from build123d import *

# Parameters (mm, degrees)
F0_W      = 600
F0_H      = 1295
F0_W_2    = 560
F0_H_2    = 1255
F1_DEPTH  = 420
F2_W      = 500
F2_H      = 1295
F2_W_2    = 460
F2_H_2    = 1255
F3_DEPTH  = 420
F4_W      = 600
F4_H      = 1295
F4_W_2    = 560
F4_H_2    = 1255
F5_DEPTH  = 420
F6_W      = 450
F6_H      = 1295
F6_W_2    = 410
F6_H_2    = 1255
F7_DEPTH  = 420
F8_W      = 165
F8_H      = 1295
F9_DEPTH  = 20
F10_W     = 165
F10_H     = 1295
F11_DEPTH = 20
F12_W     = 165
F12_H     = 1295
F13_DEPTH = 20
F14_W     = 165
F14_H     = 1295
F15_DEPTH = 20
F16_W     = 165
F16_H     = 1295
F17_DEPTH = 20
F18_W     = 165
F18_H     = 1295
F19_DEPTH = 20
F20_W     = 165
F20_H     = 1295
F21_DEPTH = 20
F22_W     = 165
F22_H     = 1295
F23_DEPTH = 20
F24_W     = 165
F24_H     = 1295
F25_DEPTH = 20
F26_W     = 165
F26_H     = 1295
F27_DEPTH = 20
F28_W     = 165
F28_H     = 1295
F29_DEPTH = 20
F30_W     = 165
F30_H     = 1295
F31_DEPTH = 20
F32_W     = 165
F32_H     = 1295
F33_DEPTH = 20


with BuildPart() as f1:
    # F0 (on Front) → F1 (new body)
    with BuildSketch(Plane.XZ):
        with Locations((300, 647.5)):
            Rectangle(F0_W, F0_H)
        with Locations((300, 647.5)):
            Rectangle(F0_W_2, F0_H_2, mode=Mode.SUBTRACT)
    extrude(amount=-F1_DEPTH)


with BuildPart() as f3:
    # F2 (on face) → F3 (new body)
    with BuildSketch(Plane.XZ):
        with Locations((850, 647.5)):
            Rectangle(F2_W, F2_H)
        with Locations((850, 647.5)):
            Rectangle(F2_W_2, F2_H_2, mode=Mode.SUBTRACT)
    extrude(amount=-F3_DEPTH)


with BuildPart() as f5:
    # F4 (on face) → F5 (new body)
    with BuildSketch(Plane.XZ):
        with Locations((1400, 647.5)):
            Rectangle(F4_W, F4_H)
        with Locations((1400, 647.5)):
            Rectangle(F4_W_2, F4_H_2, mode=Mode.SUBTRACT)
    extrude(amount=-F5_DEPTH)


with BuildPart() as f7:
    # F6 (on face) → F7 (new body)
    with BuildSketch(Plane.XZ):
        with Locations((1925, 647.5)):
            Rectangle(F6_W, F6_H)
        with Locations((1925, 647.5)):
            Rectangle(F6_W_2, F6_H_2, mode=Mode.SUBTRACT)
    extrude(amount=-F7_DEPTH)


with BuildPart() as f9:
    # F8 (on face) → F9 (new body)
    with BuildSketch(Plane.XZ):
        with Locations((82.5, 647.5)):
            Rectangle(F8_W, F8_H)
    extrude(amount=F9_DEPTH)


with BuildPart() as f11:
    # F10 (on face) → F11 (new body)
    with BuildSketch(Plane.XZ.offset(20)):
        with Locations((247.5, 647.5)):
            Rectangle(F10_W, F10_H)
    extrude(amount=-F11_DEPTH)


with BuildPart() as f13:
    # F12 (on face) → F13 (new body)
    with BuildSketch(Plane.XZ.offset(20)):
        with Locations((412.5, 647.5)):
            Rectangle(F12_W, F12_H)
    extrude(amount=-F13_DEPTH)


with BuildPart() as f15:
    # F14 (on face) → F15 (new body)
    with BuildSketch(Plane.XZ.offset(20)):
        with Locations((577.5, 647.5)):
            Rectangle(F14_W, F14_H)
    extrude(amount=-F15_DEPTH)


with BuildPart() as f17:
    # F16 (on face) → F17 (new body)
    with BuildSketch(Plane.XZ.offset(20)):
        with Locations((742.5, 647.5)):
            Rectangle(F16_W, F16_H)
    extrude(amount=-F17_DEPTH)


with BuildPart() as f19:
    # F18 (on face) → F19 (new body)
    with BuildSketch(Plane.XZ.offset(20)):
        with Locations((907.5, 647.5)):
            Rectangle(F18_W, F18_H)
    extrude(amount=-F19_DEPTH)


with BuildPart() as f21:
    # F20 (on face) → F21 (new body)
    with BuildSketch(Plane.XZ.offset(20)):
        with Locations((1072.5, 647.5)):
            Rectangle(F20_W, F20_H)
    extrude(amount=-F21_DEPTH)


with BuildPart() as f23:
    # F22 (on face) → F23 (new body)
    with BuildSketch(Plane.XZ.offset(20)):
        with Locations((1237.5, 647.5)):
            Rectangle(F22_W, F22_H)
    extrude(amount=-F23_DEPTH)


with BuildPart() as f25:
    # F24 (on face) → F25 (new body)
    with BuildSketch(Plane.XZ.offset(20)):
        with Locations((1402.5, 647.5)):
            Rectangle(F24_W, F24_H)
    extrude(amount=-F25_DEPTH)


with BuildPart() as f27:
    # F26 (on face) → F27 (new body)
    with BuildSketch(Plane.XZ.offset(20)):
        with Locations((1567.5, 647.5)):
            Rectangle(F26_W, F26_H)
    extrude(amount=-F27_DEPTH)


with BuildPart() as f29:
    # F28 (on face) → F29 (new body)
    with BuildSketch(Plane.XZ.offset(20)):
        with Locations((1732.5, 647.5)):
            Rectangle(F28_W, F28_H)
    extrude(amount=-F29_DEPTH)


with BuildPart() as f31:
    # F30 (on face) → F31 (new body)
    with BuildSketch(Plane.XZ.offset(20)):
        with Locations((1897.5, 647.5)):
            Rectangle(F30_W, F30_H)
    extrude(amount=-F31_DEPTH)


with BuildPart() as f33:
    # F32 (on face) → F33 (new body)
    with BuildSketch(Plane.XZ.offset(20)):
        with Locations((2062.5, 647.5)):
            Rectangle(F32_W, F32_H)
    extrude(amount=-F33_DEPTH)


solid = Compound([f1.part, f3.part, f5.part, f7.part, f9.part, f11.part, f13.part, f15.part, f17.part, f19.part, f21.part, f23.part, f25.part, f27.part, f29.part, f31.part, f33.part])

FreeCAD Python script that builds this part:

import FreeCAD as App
import Part
import Sketcher
from FreeCAD import Vector
Q = App.Units.Quantity

doc = App.newDocument("Part")
body = doc.addObject("PartDesign::Body", "Body")

# Sketch on XZ plane
sketch1 = body.newObject("Sketcher::SketchObject", "Sketch")
sketch1.AttachmentSupport = (doc.getObject("XZ_Plane"), [""])
sketch1.MapMode = "FlatFace"
sketch1.addGeometry([
    Part.LineSegment(Vector(0, 1295, 0), Vector(0, 0, 0)),  # 0
    Part.LineSegment(Vector(0, 0, 0), Vector(600, 0, 0)),  # 1
    Part.LineSegment(Vector(600, 0, 0), Vector(600, 1295, 0)),  # 2
    Part.LineSegment(Vector(600, 1295, 0), Vector(0, 1295, 0)),  # 3
    Part.LineSegment(Vector(580, 20, 0), Vector(20, 20, 0)),  # 4
    Part.LineSegment(Vector(20, 20, 0), Vector(20, 1275, 0)),  # 5
    Part.LineSegment(Vector(20, 1275, 0), Vector(580, 1275, 0)),  # 6
    Part.LineSegment(Vector(580, 1275, 0), Vector(580, 20, 0)),  # 7
], False)
sketch1.addConstraint([
    Sketcher.Constraint("Coincident", 0, 2, 1, 1),
    Sketcher.Constraint("Coincident", 1, 2, 2, 1),
    Sketcher.Constraint("Coincident", 2, 2, 3, 1),
    Sketcher.Constraint("Coincident", 3, 2, 0, 1),
    Sketcher.Constraint("Coincident", 4, 2, 5, 1),
    Sketcher.Constraint("Coincident", 5, 2, 6, 1),
    Sketcher.Constraint("Coincident", 6, 2, 7, 1),
    Sketcher.Constraint("Coincident", 7, 2, 4, 1),
    Sketcher.Constraint("Vertical", 0),
    Sketcher.Constraint("Horizontal", 1),
    Sketcher.Constraint("Vertical", 2),
    Sketcher.Constraint("Horizontal", 3),
    Sketcher.Constraint("Horizontal", 4),
    Sketcher.Constraint("Vertical", 5),
    Sketcher.Constraint("Horizontal", 6),
    Sketcher.Constraint("Vertical", 7),
    Sketcher.Constraint("Coincident", 0, 2, -1, 1),
    Sketcher.Constraint("DistanceX", 1, 1, 1, 2, Q("600 mm")),
    Sketcher.Constraint("DistanceX", 4, 2, 4, 1, Q("560 mm")),
    Sketcher.Constraint("DistanceY", 0, 2, 0, 1, Q("1295 mm")),
    Sketcher.Constraint("DistanceY", 5, 1, 5, 2, Q("1255 mm")),
    Sketcher.Constraint("DistanceX", -1, 1, 4, 2, Q("20 mm")),
    Sketcher.Constraint("DistanceY", -1, 1, 4, 2, Q("20 mm")),
])
pad1 = body.newObject("PartDesign::Pad", "Pad")
pad1.Profile = sketch1
pad1.Length = 420
pad1.Reversed = True
body2 = doc.addObject("PartDesign::Body", "Body001")

# Sketch on XZ plane
sketch2 = body2.newObject("Sketcher::SketchObject", "Sketch001")
sketch2.AttachmentSupport = (doc.getObject("XZ_Plane001"), [""])
sketch2.MapMode = "FlatFace"
sketch2.addGeometry([
    Part.LineSegment(Vector(600, 1295, 0), Vector(600, 0, 0)),  # 0
    Part.LineSegment(Vector(600, 0, 0), Vector(1100, 0, 0)),  # 1
    Part.LineSegment(Vector(1100, 0, 0), Vector(1100, 1295, 0)),  # 2
    Part.LineSegment(Vector(1100, 1295, 0), Vector(600, 1295, 0)),  # 3
    Part.LineSegment(Vector(1080, 20, 0), Vector(620, 20, 0)),  # 4
    Part.LineSegment(Vector(620, 20, 0), Vector(620, 1275, 0)),  # 5
    Part.LineSegment(Vector(620, 1275, 0), Vector(1080, 1275, 0)),  # 6
    Part.LineSegment(Vector(1080, 1275, 0), Vector(1080, 20, 0)),  # 7
], False)
sketch2.addConstraint([
    Sketcher.Constraint("Coincident", 0, 2, 1, 1),
    Sketcher.Constraint("Coincident", 1, 2, 2, 1),
    Sketcher.Constraint("Coincident", 2, 2, 3, 1),
    Sketcher.Constraint("Coincident", 3, 2, 0, 1),
    Sketcher.Constraint("Coincident", 4, 2, 5, 1),
    Sketcher.Constraint("Coincident", 5, 2, 6, 1),
    Sketcher.Constraint("Coincident", 6, 2, 7, 1),
    Sketcher.Constraint("Coincident", 7, 2, 4, 1),
    Sketcher.Constraint("Vertical", 0),
    Sketcher.Constraint("Horizontal", 1),
    Sketcher.Constraint("Vertical", 2),
    Sketcher.Constraint("Horizontal", 3),
    Sketcher.Constraint("Horizontal", 4),
    Sketcher.Constraint("Vertical", 5),
    Sketcher.Constraint("Horizontal", 6),
    Sketcher.Constraint("Vertical", 7),
    Sketcher.Constraint("PointOnObject", 0, 2, -1),
    Sketcher.Constraint("DistanceX", 1, 1, 1, 2, Q("500 mm")),
    Sketcher.Constraint("DistanceX", 4, 2, 4, 1, Q("460 mm")),
    Sketcher.Constraint("DistanceY", 0, 2, 0, 1, Q("1295 mm")),
    Sketcher.Constraint("DistanceY", 5, 1, 5, 2, Q("1255 mm")),
    Sketcher.Constraint("DistanceX", -1, 1, 0, 2, Q("600 mm")),
    Sketcher.Constraint("DistanceX", -1, 1, 4, 2, Q("620 mm")),
    Sketcher.Constraint("DistanceY", -1, 1, 4, 2, Q("20 mm")),
])
pad2 = body2.newObject("PartDesign::Pad", "Pad001")
pad2.Profile = sketch2
pad2.Length = 420
pad2.Reversed = True
body3 = doc.addObject("PartDesign::Body", "Body002")

# Sketch on XZ plane
sketch3 = body3.newObject("Sketcher::SketchObject", "Sketch002")
sketch3.AttachmentSupport = (doc.getObject("XZ_Plane002"), [""])
sketch3.MapMode = "FlatFace"
sketch3.addGeometry([
    Part.LineSegment(Vector(1100, 1295, 0), Vector(1100, 0, 0)),  # 0
    Part.LineSegment(Vector(1100, 0, 0), Vector(1700, 0, 0)),  # 1
    Part.LineSegment(Vector(1700, 0, 0), Vector(1700, 1295, 0)),  # 2
    Part.LineSegment(Vector(1700, 1295, 0), Vector(1100, 1295, 0)),  # 3
    Part.LineSegment(Vector(1680, 20, 0), Vector(1120, 20, 0)),  # 4
    Part.LineSegment(Vector(1120, 20, 0), Vector(1120, 1275, 0)),  # 5
    Part.LineSegment(Vector(1120, 1275, 0), Vector(1680, 1275, 0)),  # 6
    Part.LineSegment(Vector(1680, 1275, 0), Vector(1680, 20, 0)),  # 7
], False)
sketch3.addConstraint([
    Sketcher.Constraint("Coincident", 0, 2, 1, 1),
    Sketcher.Constraint("Coincident", 1, 2, 2, 1),
    Sketcher.Constraint("Coincident", 2, 2, 3, 1),
    Sketcher.Constraint("Coincident", 3, 2, 0, 1),
    Sketcher.Constraint("Coincident", 4, 2, 5, 1),
    Sketcher.Constraint("Coincident", 5, 2, 6, 1),
    Sketcher.Constraint("Coincident", 6, 2, 7, 1),
    Sketcher.Constraint("Coincident", 7, 2, 4, 1),
    Sketcher.Constraint("Vertical", 0),
    Sketcher.Constraint("Horizontal", 1),
    Sketcher.Constraint("Vertical", 2),
    Sketcher.Constraint("Horizontal", 3),
    Sketcher.Constraint("Horizontal", 4),
    Sketcher.Constraint("Vertical", 5),
    Sketcher.Constraint("Horizontal", 6),
    Sketcher.Constraint("Vertical", 7),
    Sketcher.Constraint("PointOnObject", 0, 2, -1),
    Sketcher.Constraint("DistanceX", 1, 1, 1, 2, Q("600 mm")),
    Sketcher.Constraint("DistanceX", 4, 2, 4, 1, Q("560 mm")),
    Sketcher.Constraint("DistanceY", 0, 2, 0, 1, Q("1295 mm")),
    Sketcher.Constraint("DistanceY", 5, 1, 5, 2, Q("1255 mm")),
    Sketcher.Constraint("DistanceX", -1, 1, 0, 2, Q("1100 mm")),
    Sketcher.Constraint("DistanceX", -1, 1, 4, 2, Q("1120 mm")),
    Sketcher.Constraint("DistanceY", -1, 1, 4, 2, Q("20 mm")),
])
pad3 = body3.newObject("PartDesign::Pad", "Pad002")
pad3.Profile = sketch3
pad3.Length = 420
pad3.Reversed = True
body4 = doc.addObject("PartDesign::Body", "Body003")

# Sketch on XZ plane
sketch4 = body4.newObject("Sketcher::SketchObject", "Sketch003")
sketch4.AttachmentSupport = (doc.getObject("XZ_Plane003"), [""])
sketch4.MapMode = "FlatFace"
sketch4.addGeometry([
    Part.LineSegment(Vector(1700, 1295, 0), Vector(1700, 0, 0)),  # 0
    Part.LineSegment(Vector(1700, 0, 0), Vector(2150, 0, 0)),  # 1
    Part.LineSegment(Vector(2150, 0, 0), Vector(2150, 1295, 0)),  # 2
    Part.LineSegment(Vector(2150, 1295, 0), Vector(1700, 1295, 0)),  # 3
    Part.LineSegment(Vector(2130, 20, 0), Vector(1720, 20, 0)),  # 4
    Part.LineSegment(Vector(1720, 20, 0), Vector(1720, 1275, 0)),  # 5
    Part.LineSegment(Vector(1720, 1275, 0), Vector(2130, 1275, 0)),  # 6
    Part.LineSegment(Vector(2130, 1275, 0), Vector(2130, 20, 0)),  # 7
], False)
sketch4.addConstraint([
    Sketcher.Constraint("Coincident", 0, 2, 1, 1),
    Sketcher.Constraint("Coincident", 1, 2, 2, 1),
    Sketcher.Constraint("Coincident", 2, 2, 3, 1),
    Sketcher.Constraint("Coincident", 3, 2, 0, 1),
    Sketcher.Constraint("Coincident", 4, 2, 5, 1),
    Sketcher.Constraint("Coincident", 5, 2, 6, 1),
    Sketcher.Constraint("Coincident", 6, 2, 7, 1),
    Sketcher.Constraint("Coincident", 7, 2, 4, 1),
    Sketcher.Constraint("Vertical", 0),
    Sketcher.Constraint("Horizontal", 1),
    Sketcher.Constraint("Vertical", 2),
    Sketcher.Constraint("Horizontal", 3),
    Sketcher.Constraint("Horizontal", 4),
    Sketcher.Constraint("Vertical", 5),
    Sketcher.Constraint("Horizontal", 6),
    Sketcher.Constraint("Vertical", 7),
    Sketcher.Constraint("PointOnObject", 0, 2, -1),
    Sketcher.Constraint("DistanceX", 1, 1, 1, 2, Q("450 mm")),
    Sketcher.Constraint("DistanceX", 4, 2, 4, 1, Q("410 mm")),
    Sketcher.Constraint("DistanceY", 0, 2, 0, 1, Q("1295 mm")),
    Sketcher.Constraint("DistanceY", 5, 1, 5, 2, Q("1255 mm")),
    Sketcher.Constraint("DistanceX", -1, 1, 0, 2, Q("1700 mm")),
    Sketcher.Constraint("DistanceX", -1, 1, 4, 2, Q("1720 mm")),
    Sketcher.Constraint("DistanceY", -1, 1, 4, 2, Q("20 mm")),
])
pad4 = body4.newObject("PartDesign::Pad", "Pad003")
pad4.Profile = sketch4
pad4.Length = 420
pad4.Reversed = True
body5 = doc.addObject("PartDesign::Body", "Body004")

# Sketch on XZ plane
sketch5 = body5.newObject("Sketcher::SketchObject", "Sketch004")
sketch5.AttachmentSupport = (doc.getObject("XZ_Plane004"), [""])
sketch5.MapMode = "FlatFace"
sketch5.addGeometry([
    Part.LineSegment(Vector(0, 1295, 0), Vector(0, 0, 0)),
    Part.LineSegment(Vector(0, 0, 0), Vector(165, 0, 0)),
    Part.LineSegment(Vector(165, 0, 0), Vector(165, 1295, 0)),
    Part.LineSegment(Vector(165, 1295, 0), Vector(0, 1295, 0)),
], False)
sketch5.addConstraint([
    Sketcher.Constraint("Coincident", 0, 2, 1, 1),
    Sketcher.Constraint("Coincident", 1, 2, 2, 1),
    Sketcher.Constraint("Coincident", 2, 2, 3, 1),
    Sketcher.Constraint("Coincident", 3, 2, 0, 1),
    Sketcher.Constraint("Vertical", 0),
    Sketcher.Constraint("Horizontal", 1),
    Sketcher.Constraint("Vertical", 2),
    Sketcher.Constraint("Horizontal", 3),
    Sketcher.Constraint("Coincident", 0, 2, -1, 1),
    Sketcher.Constraint("DistanceX", 1, 1, 1, 2, Q("165 mm")),
    Sketcher.Constraint("DistanceY", 0, 2, 0, 1, Q("1295 mm")),
])
pad5 = body5.newObject("PartDesign::Pad", "Pad004")
pad5.Profile = sketch5
pad5.Length = 20
body6 = doc.addObject("PartDesign::Body", "Body005")

# Sketch on XZ plane
sketch6 = body6.newObject("Sketcher::SketchObject", "Sketch005")
sketch6.AttachmentSupport = (doc.getObject("XZ_Plane005"), [""])
sketch6.MapMode = "FlatFace"
sketch6.AttachmentOffset = App.Placement(Vector(0, 0, 20), App.Rotation())
sketch6.addGeometry([
    Part.LineSegment(Vector(165, 1295, 0), Vector(165, 0, 0)),
    Part.LineSegment(Vector(165, 0, 0), Vector(330, 0, 0)),
    Part.LineSegment(Vector(330, 0, 0), Vector(330, 1295, 0)),
    Part.LineSegment(Vector(330, 1295, 0), Vector(165, 1295, 0)),
], False)
sketch6.addConstraint([
    Sketcher.Constraint("Coincident", 0, 2, 1, 1),
    Sketcher.Constraint("Coincident", 1, 2, 2, 1),
    Sketcher.Constraint("Coincident", 2, 2, 3, 1),
    Sketcher.Constraint("Coincident", 3, 2, 0, 1),
    Sketcher.Constraint("Vertical", 0),
    Sketcher.Constraint("Horizontal", 1),
    Sketcher.Constraint("Vertical", 2),
    Sketcher.Constraint("Horizontal", 3),
    Sketcher.Constraint("PointOnObject", 0, 2, -1),
    Sketcher.Constraint("DistanceX", 1, 1, 1, 2, Q("165 mm")),
    Sketcher.Constraint("DistanceY", 0, 2, 0, 1, Q("1295 mm")),
    Sketcher.Constraint("DistanceX", -1, 1, 0, 2, Q("165 mm")),
])
pad6 = body6.newObject("PartDesign::Pad", "Pad005")
pad6.Profile = sketch6
pad6.Length = 20
pad6.Reversed = True
body7 = doc.addObject("PartDesign::Body", "Body006")

# Sketch on XZ plane
sketch7 = body7.newObject("Sketcher::SketchObject", "Sketch006")
sketch7.AttachmentSupport = (doc.getObject("XZ_Plane006"), [""])
sketch7.MapMode = "FlatFace"
sketch7.AttachmentOffset = App.Placement(Vector(0, 0, 20), App.Rotation())
sketch7.addGeometry([
    Part.LineSegment(Vector(330, 1295, 0), Vector(330, 0, 0)),
    Part.LineSegment(Vector(330, 0, 0), Vector(495, 0, 0)),
    Part.LineSegment(Vector(495, 0, 0), Vector(495, 1295, 0)),
    Part.LineSegment(Vector(495, 1295, 0), Vector(330, 1295, 0)),
], False)
sketch7.addConstraint([
    Sketcher.Constraint("Coincident", 0, 2, 1, 1),
    Sketcher.Constraint("Coincident", 1, 2, 2, 1),
    Sketcher.Constraint("Coincident", 2, 2, 3, 1),
    Sketcher.Constraint("Coincident", 3, 2, 0, 1),
    Sketcher.Constraint("Vertical", 0),
    Sketcher.Constraint("Horizontal", 1),
    Sketcher.Constraint("Vertical", 2),
    Sketcher.Constraint("Horizontal", 3),
    Sketcher.Constraint("PointOnObject", 0, 2, -1),
    Sketcher.Constraint("DistanceX", 1, 1, 1, 2, Q("165 mm")),
    Sketcher.Constraint("DistanceY", 0, 2, 0, 1, Q("1295 mm")),
    Sketcher.Constraint("DistanceX", -1, 1, 0, 2, Q("330 mm")),
])
pad7 = body7.newObject("PartDesign::Pad", "Pad006")
pad7.Profile = sketch7
pad7.Length = 20
pad7.Reversed = True
body8 = doc.addObject("PartDesign::Body", "Body007")

# Sketch on XZ plane
sketch8 = body8.newObject("Sketcher::SketchObject", "Sketch007")
sketch8.AttachmentSupport = (doc.getObject("XZ_Plane007"), [""])
sketch8.MapMode = "FlatFace"
sketch8.AttachmentOffset = App.Placement(Vector(0, 0, 20), App.Rotation())
sketch8.addGeometry([
    Part.LineSegment(Vector(495, 1295, 0), Vector(495, 0, 0)),
    Part.LineSegment(Vector(495, 0, 0), Vector(660, 0, 0)),
    Part.LineSegment(Vector(660, 0, 0), Vector(660, 1295, 0)),
    Part.LineSegment(Vector(660, 1295, 0), Vector(495, 1295, 0)),
], False)
sketch8.addConstraint([
    Sketcher.Constraint("Coincident", 0, 2, 1, 1),
    Sketcher.Constraint("Coincident", 1, 2, 2, 1),
    Sketcher.Constraint("Coincident", 2, 2, 3, 1),
    Sketcher.Constraint("Coincident", 3, 2, 0, 1),
    Sketcher.Constraint("Vertical", 0),
    Sketcher.Constraint("Horizontal", 1),
    Sketcher.Constraint("Vertical", 2),
    Sketcher.Constraint("Horizontal", 3),
    Sketcher.Constraint("PointOnObject", 0, 2, -1),
    Sketcher.Constraint("DistanceX", 1, 1, 1, 2, Q("165 mm")),
    Sketcher.Constraint("DistanceY", 0, 2, 0, 1, Q("1295 mm")),
    Sketcher.Constraint("DistanceX", -1, 1, 0, 2, Q("495 mm")),
])
pad8 = body8.newObject("PartDesign::Pad", "Pad007")
pad8.Profile = sketch8
pad8.Length = 20
pad8.Reversed = True
body9 = doc.addObject("PartDesign::Body", "Body008")

# Sketch on XZ plane
sketch9 = body9.newObject("Sketcher::SketchObject", "Sketch008")
sketch9.AttachmentSupport = (doc.getObject("XZ_Plane008"), [""])
sketch9.MapMode = "FlatFace"
sketch9.AttachmentOffset = App.Placement(Vector(0, 0, 20), App.Rotation())
sketch9.addGeometry([
    Part.LineSegment(Vector(660, 1295, 0), Vector(660, 0, 0)),
    Part.LineSegment(Vector(660, 0, 0), Vector(825, 0, 0)),
    Part.LineSegment(Vector(825, 0, 0), Vector(825, 1295, 0)),
    Part.LineSegment(Vector(825, 1295, 0), Vector(660, 1295, 0)),
], False)
sketch9.addConstraint([
    Sketcher.Constraint("Coincident", 0, 2, 1, 1),
    Sketcher.Constraint("Coincident", 1, 2, 2, 1),
    Sketcher.Constraint("Coincident", 2, 2, 3, 1),
    Sketcher.Constraint("Coincident", 3, 2, 0, 1),
    Sketcher.Constraint("Vertical", 0),
    Sketcher.Constraint("Horizontal", 1),
    Sketcher.Constraint("Vertical", 2),
    Sketcher.Constraint("Horizontal", 3),
    Sketcher.Constraint("PointOnObject", 0, 2, -1),
    Sketcher.Constraint("DistanceX", 1, 1, 1, 2, Q("165 mm")),
    Sketcher.Constraint("DistanceY", 0, 2, 0, 1, Q("1295 mm")),
    Sketcher.Constraint("DistanceX", -1, 1, 0, 2, Q("660 mm")),
])
pad9 = body9.newObject("PartDesign::Pad", "Pad008")
pad9.Profile = sketch9
pad9.Length = 20
pad9.Reversed = True
body10 = doc.addObject("PartDesign::Body", "Body009")

# Sketch on XZ plane
sketch10 = body10.newObject("Sketcher::SketchObject", "Sketch009")
sketch10.AttachmentSupport = (doc.getObject("XZ_Plane009"), [""])
sketch10.MapMode = "FlatFace"
sketch10.AttachmentOffset = App.Placement(Vector(0, 0, 20), App.Rotation())
sketch10.addGeometry([
    Part.LineSegment(Vector(825, 1295, 0), Vector(825, 0, 0)),
    Part.LineSegment(Vector(825, 0, 0), Vector(990, 0, 0)),
    Part.LineSegment(Vector(990, 0, 0), Vector(990, 1295, 0)),
    Part.LineSegment(Vector(990, 1295, 0), Vector(825, 1295, 0)),
], False)
sketch10.addConstraint([
    Sketcher.Constraint("Coincident", 0, 2, 1, 1),
    Sketcher.Constraint("Coincident", 1, 2, 2, 1),
    Sketcher.Constraint("Coincident", 2, 2, 3, 1),
    Sketcher.Constraint("Coincident", 3, 2, 0, 1),
    Sketcher.Constraint("Vertical", 0),
    Sketcher.Constraint("Horizontal", 1),
    Sketcher.Constraint("Vertical", 2),
    Sketcher.Constraint("Horizontal", 3),
    Sketcher.Constraint("PointOnObject", 0, 2, -1),
    Sketcher.Constraint("DistanceX", 1, 1, 1, 2, Q("165 mm")),
    Sketcher.Constraint("DistanceY", 0, 2, 0, 1, Q("1295 mm")),
    Sketcher.Constraint("DistanceX", -1, 1, 0, 2, Q("825 mm")),
])
pad10 = body10.newObject("PartDesign::Pad", "Pad009")
pad10.Profile = sketch10
pad10.Length = 20
pad10.Reversed = True
body11 = doc.addObject("PartDesign::Body", "Body010")

# Sketch on XZ plane
sketch11 = body11.newObject("Sketcher::SketchObject", "Sketch010")
sketch11.AttachmentSupport = (doc.getObject("XZ_Plane010"), [""])
sketch11.MapMode = "FlatFace"
sketch11.AttachmentOffset = App.Placement(Vector(0, 0, 20), App.Rotation())
sketch11.addGeometry([
    Part.LineSegment(Vector(990, 1295, 0), Vector(990, 0, 0)),
    Part.LineSegment(Vector(990, 0, 0), Vector(1155, 0, 0)),
    Part.LineSegment(Vector(1155, 0, 0), Vector(1155, 1295, 0)),
    Part.LineSegment(Vector(1155, 1295, 0), Vector(990, 1295, 0)),
], False)
sketch11.addConstraint([
    Sketcher.Constraint("Coincident", 0, 2, 1, 1),
    Sketcher.Constraint("Coincident", 1, 2, 2, 1),
    Sketcher.Constraint("Coincident", 2, 2, 3, 1),
    Sketcher.Constraint("Coincident", 3, 2, 0, 1),
    Sketcher.Constraint("Vertical", 0),
    Sketcher.Constraint("Horizontal", 1),
    Sketcher.Constraint("Vertical", 2),
    Sketcher.Constraint("Horizontal", 3),
    Sketcher.Constraint("PointOnObject", 0, 2, -1),
    Sketcher.Constraint("DistanceX", 1, 1, 1, 2, Q("165 mm")),
    Sketcher.Constraint("DistanceY", 0, 2, 0, 1, Q("1295 mm")),
    Sketcher.Constraint("DistanceX", -1, 1, 0, 2, Q("990 mm")),
])
pad11 = body11.newObject("PartDesign::Pad", "Pad010")
pad11.Profile = sketch11
pad11.Length = 20
pad11.Reversed = True
body12 = doc.addObject("PartDesign::Body", "Body011")

# Sketch on XZ plane
sketch12 = body12.newObject("Sketcher::SketchObject", "Sketch011")
sketch12.AttachmentSupport = (doc.getObject("XZ_Plane011"), [""])
sketch12.MapMode = "FlatFace"
sketch12.AttachmentOffset = App.Placement(Vector(0, 0, 20), App.Rotation())
sketch12.addGeometry([
    Part.LineSegment(Vector(1155, 1295, 0), Vector(1155, 0, 0)),
    Part.LineSegment(Vector(1155, 0, 0), Vector(1320, 0, 0)),
    Part.LineSegment(Vector(1320, 0, 0), Vector(1320, 1295, 0)),
    Part.LineSegment(Vector(1320, 1295, 0), Vector(1155, 1295, 0)),
], False)
sketch12.addConstraint([
    Sketcher.Constraint("Coincident", 0, 2, 1, 1),
    Sketcher.Constraint("Coincident", 1, 2, 2, 1),
    Sketcher.Constraint("Coincident", 2, 2, 3, 1),
    Sketcher.Constraint("Coincident", 3, 2, 0, 1),
    Sketcher.Constraint("Vertical", 0),
    Sketcher.Constraint("Horizontal", 1),
    Sketcher.Constraint("Vertical", 2),
    Sketcher.Constraint("Horizontal", 3),
    Sketcher.Constraint("PointOnObject", 0, 2, -1),
    Sketcher.Constraint("DistanceX", 1, 1, 1, 2, Q("165 mm")),
    Sketcher.Constraint("DistanceY", 0, 2, 0, 1, Q("1295 mm")),
    Sketcher.Constraint("DistanceX", -1, 1, 0, 2, Q("1155 mm")),
])
pad12 = body12.newObject("PartDesign::Pad", "Pad011")
pad12.Profile = sketch12
pad12.Length = 20
pad12.Reversed = True
body13 = doc.addObject("PartDesign::Body", "Body012")

# Sketch on XZ plane
sketch13 = body13.newObject("Sketcher::SketchObject", "Sketch012")
sketch13.AttachmentSupport = (doc.getObject("XZ_Plane012"), [""])
sketch13.MapMode = "FlatFace"
sketch13.AttachmentOffset = App.Placement(Vector(0, 0, 20), App.Rotation())
sketch13.addGeometry([
    Part.LineSegment(Vector(1320, 1295, 0), Vector(1320, 0, 0)),
    Part.LineSegment(Vector(1320, 0, 0), Vector(1485, 0, 0)),
    Part.LineSegment(Vector(1485, 0, 0), Vector(1485, 1295, 0)),
    Part.LineSegment(Vector(1485, 1295, 0), Vector(1320, 1295, 0)),
], False)
sketch13.addConstraint([
    Sketcher.Constraint("Coincident", 0, 2, 1, 1),
    Sketcher.Constraint("Coincident", 1, 2, 2, 1),
    Sketcher.Constraint("Coincident", 2, 2, 3, 1),
    Sketcher.Constraint("Coincident", 3, 2, 0, 1),
    Sketcher.Constraint("Vertical", 0),
    Sketcher.Constraint("Horizontal", 1),
    Sketcher.Constraint("Vertical", 2),
    Sketcher.Constraint("Horizontal", 3),
    Sketcher.Constraint("PointOnObject", 0, 2, -1),
    Sketcher.Constraint("DistanceX", 1, 1, 1, 2, Q("165 mm")),
    Sketcher.Constraint("DistanceY", 0, 2, 0, 1, Q("1295 mm")),
    Sketcher.Constraint("DistanceX", -1, 1, 0, 2, Q("1320 mm")),
])
pad13 = body13.newObject("PartDesign::Pad", "Pad012")
pad13.Profile = sketch13
pad13.Length = 20
pad13.Reversed = True
body14 = doc.addObject("PartDesign::Body", "Body013")

# Sketch on XZ plane
sketch14 = body14.newObject("Sketcher::SketchObject", "Sketch013")
sketch14.AttachmentSupport = (doc.getObject("XZ_Plane013"), [""])
sketch14.MapMode = "FlatFace"
sketch14.AttachmentOffset = App.Placement(Vector(0, 0, 20), App.Rotation())
sketch14.addGeometry([
    Part.LineSegment(Vector(1485, 1295, 0), Vector(1485, 0, 0)),
    Part.LineSegment(Vector(1485, 0, 0), Vector(1650, 0, 0)),
    Part.LineSegment(Vector(1650, 0, 0), Vector(1650, 1295, 0)),
    Part.LineSegment(Vector(1650, 1295, 0), Vector(1485, 1295, 0)),
], False)
sketch14.addConstraint([
    Sketcher.Constraint("Coincident", 0, 2, 1, 1),
    Sketcher.Constraint("Coincident", 1, 2, 2, 1),
    Sketcher.Constraint("Coincident", 2, 2, 3, 1),
    Sketcher.Constraint("Coincident", 3, 2, 0, 1),
    Sketcher.Constraint("Vertical", 0),
    Sketcher.Constraint("Horizontal", 1),
    Sketcher.Constraint("Vertical", 2),
    Sketcher.Constraint("Horizontal", 3),
    Sketcher.Constraint("PointOnObject", 0, 2, -1),
    Sketcher.Constraint("DistanceX", 1, 1, 1, 2, Q("165 mm")),
    Sketcher.Constraint("DistanceY", 0, 2, 0, 1, Q("1295 mm")),
    Sketcher.Constraint("DistanceX", -1, 1, 0, 2, Q("1485 mm")),
])
pad14 = body14.newObject("PartDesign::Pad", "Pad013")
pad14.Profile = sketch14
pad14.Length = 20
pad14.Reversed = True
body15 = doc.addObject("PartDesign::Body", "Body014")

# Sketch on XZ plane
sketch15 = body15.newObject("Sketcher::SketchObject", "Sketch014")
sketch15.AttachmentSupport = (doc.getObject("XZ_Plane014"), [""])
sketch15.MapMode = "FlatFace"
sketch15.AttachmentOffset = App.Placement(Vector(0, 0, 20), App.Rotation())
sketch15.addGeometry([
    Part.LineSegment(Vector(1650, 1295, 0), Vector(1650, 0, 0)),
    Part.LineSegment(Vector(1650, 0, 0), Vector(1815, 0, 0)),
    Part.LineSegment(Vector(1815, 0, 0), Vector(1815, 1295, 0)),
    Part.LineSegment(Vector(1815, 1295, 0), Vector(1650, 1295, 0)),
], False)
sketch15.addConstraint([
    Sketcher.Constraint("Coincident", 0, 2, 1, 1),
    Sketcher.Constraint("Coincident", 1, 2, 2, 1),
    Sketcher.Constraint("Coincident", 2, 2, 3, 1),
    Sketcher.Constraint("Coincident", 3, 2, 0, 1),
    Sketcher.Constraint("Vertical", 0),
    Sketcher.Constraint("Horizontal", 1),
    Sketcher.Constraint("Vertical", 2),
    Sketcher.Constraint("Horizontal", 3),
    Sketcher.Constraint("PointOnObject", 0, 2, -1),
    Sketcher.Constraint("DistanceX", 1, 1, 1, 2, Q("165 mm")),
    Sketcher.Constraint("DistanceY", 0, 2, 0, 1, Q("1295 mm")),
    Sketcher.Constraint("DistanceX", -1, 1, 0, 2, Q("1650 mm")),
])
pad15 = body15.newObject("PartDesign::Pad", "Pad014")
pad15.Profile = sketch15
pad15.Length = 20
pad15.Reversed = True
body16 = doc.addObject("PartDesign::Body", "Body015")

# Sketch on XZ plane
sketch16 = body16.newObject("Sketcher::SketchObject", "Sketch015")
sketch16.AttachmentSupport = (doc.getObject("XZ_Plane015"), [""])
sketch16.MapMode = "FlatFace"
sketch16.AttachmentOffset = App.Placement(Vector(0, 0, 20), App.Rotation())
sketch16.addGeometry([
    Part.LineSegment(Vector(1815, 1295, 0), Vector(1815, 0, 0)),
    Part.LineSegment(Vector(1815, 0, 0), Vector(1980, 0, 0)),
    Part.LineSegment(Vector(1980, 0, 0), Vector(1980, 1295, 0)),
    Part.LineSegment(Vector(1980, 1295, 0), Vector(1815, 1295, 0)),
], False)
sketch16.addConstraint([
    Sketcher.Constraint("Coincident", 0, 2, 1, 1),
    Sketcher.Constraint("Coincident", 1, 2, 2, 1),
    Sketcher.Constraint("Coincident", 2, 2, 3, 1),
    Sketcher.Constraint("Coincident", 3, 2, 0, 1),
    Sketcher.Constraint("Vertical", 0),
    Sketcher.Constraint("Horizontal", 1),
    Sketcher.Constraint("Vertical", 2),
    Sketcher.Constraint("Horizontal", 3),
    Sketcher.Constraint("PointOnObject", 0, 2, -1),
    Sketcher.Constraint("DistanceX", 1, 1, 1, 2, Q("165 mm")),
    Sketcher.Constraint("DistanceY", 0, 2, 0, 1, Q("1295 mm")),
    Sketcher.Constraint("DistanceX", -1, 1, 0, 2, Q("1815 mm")),
])
pad16 = body16.newObject("PartDesign::Pad", "Pad015")
pad16.Profile = sketch16
pad16.Length = 20
pad16.Reversed = True
body17 = doc.addObject("PartDesign::Body", "Body016")

# Sketch on XZ plane
sketch17 = body17.newObject("Sketcher::SketchObject", "Sketch016")
sketch17.AttachmentSupport = (doc.getObject("XZ_Plane016"), [""])
sketch17.MapMode = "FlatFace"
sketch17.AttachmentOffset = App.Placement(Vector(0, 0, 20), App.Rotation())
sketch17.addGeometry([
    Part.LineSegment(Vector(1980, 1295, 0), Vector(1980, 0, 0)),
    Part.LineSegment(Vector(1980, 0, 0), Vector(2145, 0, 0)),
    Part.LineSegment(Vector(2145, 0, 0), Vector(2145, 1295, 0)),
    Part.LineSegment(Vector(2145, 1295, 0), Vector(1980, 1295, 0)),
], False)
sketch17.addConstraint([
    Sketcher.Constraint("Coincident", 0, 2, 1, 1),
    Sketcher.Constraint("Coincident", 1, 2, 2, 1),
    Sketcher.Constraint("Coincident", 2, 2, 3, 1),
    Sketcher.Constraint("Coincident", 3, 2, 0, 1),
    Sketcher.Constraint("Vertical", 0),
    Sketcher.Constraint("Horizontal", 1),
    Sketcher.Constraint("Vertical", 2),
    Sketcher.Constraint("Horizontal", 3),
    Sketcher.Constraint("PointOnObject", 0, 2, -1),
    Sketcher.Constraint("DistanceX", 1, 1, 1, 2, Q("165 mm")),
    Sketcher.Constraint("DistanceY", 0, 2, 0, 1, Q("1295 mm")),
    Sketcher.Constraint("DistanceX", -1, 1, 0, 2, Q("1980 mm")),
])
pad17 = body17.newObject("PartDesign::Pad", "Pad016")
pad17.Profile = sketch17
pad17.Length = 20
pad17.Reversed = True

doc.recompute()
